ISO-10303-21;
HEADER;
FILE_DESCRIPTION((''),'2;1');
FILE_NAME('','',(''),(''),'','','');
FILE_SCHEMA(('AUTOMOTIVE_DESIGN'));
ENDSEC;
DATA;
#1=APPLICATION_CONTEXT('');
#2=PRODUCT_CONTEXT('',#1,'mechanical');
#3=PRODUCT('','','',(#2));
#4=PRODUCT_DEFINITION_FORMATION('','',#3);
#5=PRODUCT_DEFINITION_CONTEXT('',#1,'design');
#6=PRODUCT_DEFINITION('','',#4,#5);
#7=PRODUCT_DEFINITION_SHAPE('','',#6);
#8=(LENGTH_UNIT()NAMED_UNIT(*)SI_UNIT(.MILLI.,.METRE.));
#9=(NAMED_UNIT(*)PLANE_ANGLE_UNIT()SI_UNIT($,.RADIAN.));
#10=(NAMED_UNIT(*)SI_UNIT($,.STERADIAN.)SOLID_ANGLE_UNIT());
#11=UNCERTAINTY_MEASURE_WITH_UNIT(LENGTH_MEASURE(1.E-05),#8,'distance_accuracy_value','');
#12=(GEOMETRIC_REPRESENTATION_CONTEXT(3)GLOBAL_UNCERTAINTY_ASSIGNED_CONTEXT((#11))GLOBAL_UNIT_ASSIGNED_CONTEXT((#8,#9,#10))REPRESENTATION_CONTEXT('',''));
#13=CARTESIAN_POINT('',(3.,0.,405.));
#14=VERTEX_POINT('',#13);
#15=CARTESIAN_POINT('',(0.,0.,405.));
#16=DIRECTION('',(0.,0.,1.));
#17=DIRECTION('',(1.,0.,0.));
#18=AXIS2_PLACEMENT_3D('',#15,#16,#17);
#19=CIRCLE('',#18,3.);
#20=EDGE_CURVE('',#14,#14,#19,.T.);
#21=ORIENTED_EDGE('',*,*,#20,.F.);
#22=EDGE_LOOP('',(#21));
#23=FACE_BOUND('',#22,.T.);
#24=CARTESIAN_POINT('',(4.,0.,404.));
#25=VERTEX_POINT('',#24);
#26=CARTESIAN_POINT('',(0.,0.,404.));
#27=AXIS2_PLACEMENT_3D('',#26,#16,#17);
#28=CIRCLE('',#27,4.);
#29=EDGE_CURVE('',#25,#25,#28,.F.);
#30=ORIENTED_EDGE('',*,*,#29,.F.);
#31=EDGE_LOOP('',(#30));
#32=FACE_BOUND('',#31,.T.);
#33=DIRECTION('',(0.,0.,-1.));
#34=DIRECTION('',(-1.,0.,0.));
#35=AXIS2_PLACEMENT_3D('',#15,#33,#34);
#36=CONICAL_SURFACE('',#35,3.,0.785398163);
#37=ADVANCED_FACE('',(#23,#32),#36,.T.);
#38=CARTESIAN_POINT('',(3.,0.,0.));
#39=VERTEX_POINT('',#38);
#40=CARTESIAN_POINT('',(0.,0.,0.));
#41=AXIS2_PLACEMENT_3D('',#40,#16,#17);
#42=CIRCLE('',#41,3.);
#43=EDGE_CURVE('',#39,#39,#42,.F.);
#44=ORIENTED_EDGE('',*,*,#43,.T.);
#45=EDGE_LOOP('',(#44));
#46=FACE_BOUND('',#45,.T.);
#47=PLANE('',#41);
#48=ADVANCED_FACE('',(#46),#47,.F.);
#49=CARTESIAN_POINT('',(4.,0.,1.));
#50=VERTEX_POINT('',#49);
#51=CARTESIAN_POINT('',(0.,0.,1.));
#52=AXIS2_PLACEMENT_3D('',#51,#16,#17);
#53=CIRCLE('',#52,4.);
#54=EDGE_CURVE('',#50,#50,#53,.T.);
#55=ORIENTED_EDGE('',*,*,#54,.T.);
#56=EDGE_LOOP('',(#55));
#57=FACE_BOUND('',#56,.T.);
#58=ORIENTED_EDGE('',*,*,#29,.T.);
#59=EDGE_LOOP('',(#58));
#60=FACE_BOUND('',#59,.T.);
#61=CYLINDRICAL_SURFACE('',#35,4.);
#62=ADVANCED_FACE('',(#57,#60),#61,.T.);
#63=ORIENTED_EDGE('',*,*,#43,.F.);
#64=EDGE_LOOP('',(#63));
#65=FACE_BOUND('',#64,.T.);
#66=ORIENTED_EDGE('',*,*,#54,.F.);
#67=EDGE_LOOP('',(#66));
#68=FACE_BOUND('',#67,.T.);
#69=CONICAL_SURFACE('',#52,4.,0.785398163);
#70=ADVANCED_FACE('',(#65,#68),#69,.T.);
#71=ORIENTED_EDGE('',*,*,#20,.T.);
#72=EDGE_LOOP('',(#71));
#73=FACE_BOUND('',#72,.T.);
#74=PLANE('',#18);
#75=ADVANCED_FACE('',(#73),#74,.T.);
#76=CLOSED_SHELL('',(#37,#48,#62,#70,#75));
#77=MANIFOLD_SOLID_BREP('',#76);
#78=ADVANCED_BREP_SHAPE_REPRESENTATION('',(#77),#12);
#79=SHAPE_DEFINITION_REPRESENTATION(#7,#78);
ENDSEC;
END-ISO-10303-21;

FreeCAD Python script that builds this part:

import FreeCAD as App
import Part
import Sketcher

V = App.Vector


def edges_at(feature, points):
    """Names of the edges that pass closest to the given points."""
    edges = feature.Shape.Edges
    near = lambda p: min(range(len(edges)), key=lambda i: edges[i].distToShape(Part.Vertex(*p))[0])
    return sorted({f"Edge{near(p) + 1}" for p in points})

doc = App.newDocument("Part")
body = doc.addObject("PartDesign::Body", "Body")

sketch1 = body.newObject("Sketcher::SketchObject", "Sketch")
sketch1.AttachmentSupport = (doc.getObject("XY_Plane"), [""])
sketch1.MapMode = "FlatFace"
sketch1.addGeometry(Part.Circle(V(0, 0, 0), V(0, 0, 1), 4), False)
sketch1.addConstraint(Sketcher.Constraint("Coincident", 0, 3, -1, 1))
sketch1.addConstraint(Sketcher.Constraint("Diameter", 0, 8.0))
pad1 = body.newObject("PartDesign::Pad", "Pad")
pad1.Profile = sketch1
pad1.Length = 405
doc.recompute()

chamfer = body.newObject("PartDesign::Chamfer", "Chamfer")
chamfer.Base = (pad1, edges_at(pad1, [(-4, 0, 0)]))
chamfer.Size = 1
doc.recompute()

chamfer2 = body.newObject("PartDesign::Chamfer", "Chamfer001")
chamfer2.Base = (chamfer, edges_at(chamfer, [(-4, 0, 405)]))
chamfer2.Size = 1

doc.recompute()
